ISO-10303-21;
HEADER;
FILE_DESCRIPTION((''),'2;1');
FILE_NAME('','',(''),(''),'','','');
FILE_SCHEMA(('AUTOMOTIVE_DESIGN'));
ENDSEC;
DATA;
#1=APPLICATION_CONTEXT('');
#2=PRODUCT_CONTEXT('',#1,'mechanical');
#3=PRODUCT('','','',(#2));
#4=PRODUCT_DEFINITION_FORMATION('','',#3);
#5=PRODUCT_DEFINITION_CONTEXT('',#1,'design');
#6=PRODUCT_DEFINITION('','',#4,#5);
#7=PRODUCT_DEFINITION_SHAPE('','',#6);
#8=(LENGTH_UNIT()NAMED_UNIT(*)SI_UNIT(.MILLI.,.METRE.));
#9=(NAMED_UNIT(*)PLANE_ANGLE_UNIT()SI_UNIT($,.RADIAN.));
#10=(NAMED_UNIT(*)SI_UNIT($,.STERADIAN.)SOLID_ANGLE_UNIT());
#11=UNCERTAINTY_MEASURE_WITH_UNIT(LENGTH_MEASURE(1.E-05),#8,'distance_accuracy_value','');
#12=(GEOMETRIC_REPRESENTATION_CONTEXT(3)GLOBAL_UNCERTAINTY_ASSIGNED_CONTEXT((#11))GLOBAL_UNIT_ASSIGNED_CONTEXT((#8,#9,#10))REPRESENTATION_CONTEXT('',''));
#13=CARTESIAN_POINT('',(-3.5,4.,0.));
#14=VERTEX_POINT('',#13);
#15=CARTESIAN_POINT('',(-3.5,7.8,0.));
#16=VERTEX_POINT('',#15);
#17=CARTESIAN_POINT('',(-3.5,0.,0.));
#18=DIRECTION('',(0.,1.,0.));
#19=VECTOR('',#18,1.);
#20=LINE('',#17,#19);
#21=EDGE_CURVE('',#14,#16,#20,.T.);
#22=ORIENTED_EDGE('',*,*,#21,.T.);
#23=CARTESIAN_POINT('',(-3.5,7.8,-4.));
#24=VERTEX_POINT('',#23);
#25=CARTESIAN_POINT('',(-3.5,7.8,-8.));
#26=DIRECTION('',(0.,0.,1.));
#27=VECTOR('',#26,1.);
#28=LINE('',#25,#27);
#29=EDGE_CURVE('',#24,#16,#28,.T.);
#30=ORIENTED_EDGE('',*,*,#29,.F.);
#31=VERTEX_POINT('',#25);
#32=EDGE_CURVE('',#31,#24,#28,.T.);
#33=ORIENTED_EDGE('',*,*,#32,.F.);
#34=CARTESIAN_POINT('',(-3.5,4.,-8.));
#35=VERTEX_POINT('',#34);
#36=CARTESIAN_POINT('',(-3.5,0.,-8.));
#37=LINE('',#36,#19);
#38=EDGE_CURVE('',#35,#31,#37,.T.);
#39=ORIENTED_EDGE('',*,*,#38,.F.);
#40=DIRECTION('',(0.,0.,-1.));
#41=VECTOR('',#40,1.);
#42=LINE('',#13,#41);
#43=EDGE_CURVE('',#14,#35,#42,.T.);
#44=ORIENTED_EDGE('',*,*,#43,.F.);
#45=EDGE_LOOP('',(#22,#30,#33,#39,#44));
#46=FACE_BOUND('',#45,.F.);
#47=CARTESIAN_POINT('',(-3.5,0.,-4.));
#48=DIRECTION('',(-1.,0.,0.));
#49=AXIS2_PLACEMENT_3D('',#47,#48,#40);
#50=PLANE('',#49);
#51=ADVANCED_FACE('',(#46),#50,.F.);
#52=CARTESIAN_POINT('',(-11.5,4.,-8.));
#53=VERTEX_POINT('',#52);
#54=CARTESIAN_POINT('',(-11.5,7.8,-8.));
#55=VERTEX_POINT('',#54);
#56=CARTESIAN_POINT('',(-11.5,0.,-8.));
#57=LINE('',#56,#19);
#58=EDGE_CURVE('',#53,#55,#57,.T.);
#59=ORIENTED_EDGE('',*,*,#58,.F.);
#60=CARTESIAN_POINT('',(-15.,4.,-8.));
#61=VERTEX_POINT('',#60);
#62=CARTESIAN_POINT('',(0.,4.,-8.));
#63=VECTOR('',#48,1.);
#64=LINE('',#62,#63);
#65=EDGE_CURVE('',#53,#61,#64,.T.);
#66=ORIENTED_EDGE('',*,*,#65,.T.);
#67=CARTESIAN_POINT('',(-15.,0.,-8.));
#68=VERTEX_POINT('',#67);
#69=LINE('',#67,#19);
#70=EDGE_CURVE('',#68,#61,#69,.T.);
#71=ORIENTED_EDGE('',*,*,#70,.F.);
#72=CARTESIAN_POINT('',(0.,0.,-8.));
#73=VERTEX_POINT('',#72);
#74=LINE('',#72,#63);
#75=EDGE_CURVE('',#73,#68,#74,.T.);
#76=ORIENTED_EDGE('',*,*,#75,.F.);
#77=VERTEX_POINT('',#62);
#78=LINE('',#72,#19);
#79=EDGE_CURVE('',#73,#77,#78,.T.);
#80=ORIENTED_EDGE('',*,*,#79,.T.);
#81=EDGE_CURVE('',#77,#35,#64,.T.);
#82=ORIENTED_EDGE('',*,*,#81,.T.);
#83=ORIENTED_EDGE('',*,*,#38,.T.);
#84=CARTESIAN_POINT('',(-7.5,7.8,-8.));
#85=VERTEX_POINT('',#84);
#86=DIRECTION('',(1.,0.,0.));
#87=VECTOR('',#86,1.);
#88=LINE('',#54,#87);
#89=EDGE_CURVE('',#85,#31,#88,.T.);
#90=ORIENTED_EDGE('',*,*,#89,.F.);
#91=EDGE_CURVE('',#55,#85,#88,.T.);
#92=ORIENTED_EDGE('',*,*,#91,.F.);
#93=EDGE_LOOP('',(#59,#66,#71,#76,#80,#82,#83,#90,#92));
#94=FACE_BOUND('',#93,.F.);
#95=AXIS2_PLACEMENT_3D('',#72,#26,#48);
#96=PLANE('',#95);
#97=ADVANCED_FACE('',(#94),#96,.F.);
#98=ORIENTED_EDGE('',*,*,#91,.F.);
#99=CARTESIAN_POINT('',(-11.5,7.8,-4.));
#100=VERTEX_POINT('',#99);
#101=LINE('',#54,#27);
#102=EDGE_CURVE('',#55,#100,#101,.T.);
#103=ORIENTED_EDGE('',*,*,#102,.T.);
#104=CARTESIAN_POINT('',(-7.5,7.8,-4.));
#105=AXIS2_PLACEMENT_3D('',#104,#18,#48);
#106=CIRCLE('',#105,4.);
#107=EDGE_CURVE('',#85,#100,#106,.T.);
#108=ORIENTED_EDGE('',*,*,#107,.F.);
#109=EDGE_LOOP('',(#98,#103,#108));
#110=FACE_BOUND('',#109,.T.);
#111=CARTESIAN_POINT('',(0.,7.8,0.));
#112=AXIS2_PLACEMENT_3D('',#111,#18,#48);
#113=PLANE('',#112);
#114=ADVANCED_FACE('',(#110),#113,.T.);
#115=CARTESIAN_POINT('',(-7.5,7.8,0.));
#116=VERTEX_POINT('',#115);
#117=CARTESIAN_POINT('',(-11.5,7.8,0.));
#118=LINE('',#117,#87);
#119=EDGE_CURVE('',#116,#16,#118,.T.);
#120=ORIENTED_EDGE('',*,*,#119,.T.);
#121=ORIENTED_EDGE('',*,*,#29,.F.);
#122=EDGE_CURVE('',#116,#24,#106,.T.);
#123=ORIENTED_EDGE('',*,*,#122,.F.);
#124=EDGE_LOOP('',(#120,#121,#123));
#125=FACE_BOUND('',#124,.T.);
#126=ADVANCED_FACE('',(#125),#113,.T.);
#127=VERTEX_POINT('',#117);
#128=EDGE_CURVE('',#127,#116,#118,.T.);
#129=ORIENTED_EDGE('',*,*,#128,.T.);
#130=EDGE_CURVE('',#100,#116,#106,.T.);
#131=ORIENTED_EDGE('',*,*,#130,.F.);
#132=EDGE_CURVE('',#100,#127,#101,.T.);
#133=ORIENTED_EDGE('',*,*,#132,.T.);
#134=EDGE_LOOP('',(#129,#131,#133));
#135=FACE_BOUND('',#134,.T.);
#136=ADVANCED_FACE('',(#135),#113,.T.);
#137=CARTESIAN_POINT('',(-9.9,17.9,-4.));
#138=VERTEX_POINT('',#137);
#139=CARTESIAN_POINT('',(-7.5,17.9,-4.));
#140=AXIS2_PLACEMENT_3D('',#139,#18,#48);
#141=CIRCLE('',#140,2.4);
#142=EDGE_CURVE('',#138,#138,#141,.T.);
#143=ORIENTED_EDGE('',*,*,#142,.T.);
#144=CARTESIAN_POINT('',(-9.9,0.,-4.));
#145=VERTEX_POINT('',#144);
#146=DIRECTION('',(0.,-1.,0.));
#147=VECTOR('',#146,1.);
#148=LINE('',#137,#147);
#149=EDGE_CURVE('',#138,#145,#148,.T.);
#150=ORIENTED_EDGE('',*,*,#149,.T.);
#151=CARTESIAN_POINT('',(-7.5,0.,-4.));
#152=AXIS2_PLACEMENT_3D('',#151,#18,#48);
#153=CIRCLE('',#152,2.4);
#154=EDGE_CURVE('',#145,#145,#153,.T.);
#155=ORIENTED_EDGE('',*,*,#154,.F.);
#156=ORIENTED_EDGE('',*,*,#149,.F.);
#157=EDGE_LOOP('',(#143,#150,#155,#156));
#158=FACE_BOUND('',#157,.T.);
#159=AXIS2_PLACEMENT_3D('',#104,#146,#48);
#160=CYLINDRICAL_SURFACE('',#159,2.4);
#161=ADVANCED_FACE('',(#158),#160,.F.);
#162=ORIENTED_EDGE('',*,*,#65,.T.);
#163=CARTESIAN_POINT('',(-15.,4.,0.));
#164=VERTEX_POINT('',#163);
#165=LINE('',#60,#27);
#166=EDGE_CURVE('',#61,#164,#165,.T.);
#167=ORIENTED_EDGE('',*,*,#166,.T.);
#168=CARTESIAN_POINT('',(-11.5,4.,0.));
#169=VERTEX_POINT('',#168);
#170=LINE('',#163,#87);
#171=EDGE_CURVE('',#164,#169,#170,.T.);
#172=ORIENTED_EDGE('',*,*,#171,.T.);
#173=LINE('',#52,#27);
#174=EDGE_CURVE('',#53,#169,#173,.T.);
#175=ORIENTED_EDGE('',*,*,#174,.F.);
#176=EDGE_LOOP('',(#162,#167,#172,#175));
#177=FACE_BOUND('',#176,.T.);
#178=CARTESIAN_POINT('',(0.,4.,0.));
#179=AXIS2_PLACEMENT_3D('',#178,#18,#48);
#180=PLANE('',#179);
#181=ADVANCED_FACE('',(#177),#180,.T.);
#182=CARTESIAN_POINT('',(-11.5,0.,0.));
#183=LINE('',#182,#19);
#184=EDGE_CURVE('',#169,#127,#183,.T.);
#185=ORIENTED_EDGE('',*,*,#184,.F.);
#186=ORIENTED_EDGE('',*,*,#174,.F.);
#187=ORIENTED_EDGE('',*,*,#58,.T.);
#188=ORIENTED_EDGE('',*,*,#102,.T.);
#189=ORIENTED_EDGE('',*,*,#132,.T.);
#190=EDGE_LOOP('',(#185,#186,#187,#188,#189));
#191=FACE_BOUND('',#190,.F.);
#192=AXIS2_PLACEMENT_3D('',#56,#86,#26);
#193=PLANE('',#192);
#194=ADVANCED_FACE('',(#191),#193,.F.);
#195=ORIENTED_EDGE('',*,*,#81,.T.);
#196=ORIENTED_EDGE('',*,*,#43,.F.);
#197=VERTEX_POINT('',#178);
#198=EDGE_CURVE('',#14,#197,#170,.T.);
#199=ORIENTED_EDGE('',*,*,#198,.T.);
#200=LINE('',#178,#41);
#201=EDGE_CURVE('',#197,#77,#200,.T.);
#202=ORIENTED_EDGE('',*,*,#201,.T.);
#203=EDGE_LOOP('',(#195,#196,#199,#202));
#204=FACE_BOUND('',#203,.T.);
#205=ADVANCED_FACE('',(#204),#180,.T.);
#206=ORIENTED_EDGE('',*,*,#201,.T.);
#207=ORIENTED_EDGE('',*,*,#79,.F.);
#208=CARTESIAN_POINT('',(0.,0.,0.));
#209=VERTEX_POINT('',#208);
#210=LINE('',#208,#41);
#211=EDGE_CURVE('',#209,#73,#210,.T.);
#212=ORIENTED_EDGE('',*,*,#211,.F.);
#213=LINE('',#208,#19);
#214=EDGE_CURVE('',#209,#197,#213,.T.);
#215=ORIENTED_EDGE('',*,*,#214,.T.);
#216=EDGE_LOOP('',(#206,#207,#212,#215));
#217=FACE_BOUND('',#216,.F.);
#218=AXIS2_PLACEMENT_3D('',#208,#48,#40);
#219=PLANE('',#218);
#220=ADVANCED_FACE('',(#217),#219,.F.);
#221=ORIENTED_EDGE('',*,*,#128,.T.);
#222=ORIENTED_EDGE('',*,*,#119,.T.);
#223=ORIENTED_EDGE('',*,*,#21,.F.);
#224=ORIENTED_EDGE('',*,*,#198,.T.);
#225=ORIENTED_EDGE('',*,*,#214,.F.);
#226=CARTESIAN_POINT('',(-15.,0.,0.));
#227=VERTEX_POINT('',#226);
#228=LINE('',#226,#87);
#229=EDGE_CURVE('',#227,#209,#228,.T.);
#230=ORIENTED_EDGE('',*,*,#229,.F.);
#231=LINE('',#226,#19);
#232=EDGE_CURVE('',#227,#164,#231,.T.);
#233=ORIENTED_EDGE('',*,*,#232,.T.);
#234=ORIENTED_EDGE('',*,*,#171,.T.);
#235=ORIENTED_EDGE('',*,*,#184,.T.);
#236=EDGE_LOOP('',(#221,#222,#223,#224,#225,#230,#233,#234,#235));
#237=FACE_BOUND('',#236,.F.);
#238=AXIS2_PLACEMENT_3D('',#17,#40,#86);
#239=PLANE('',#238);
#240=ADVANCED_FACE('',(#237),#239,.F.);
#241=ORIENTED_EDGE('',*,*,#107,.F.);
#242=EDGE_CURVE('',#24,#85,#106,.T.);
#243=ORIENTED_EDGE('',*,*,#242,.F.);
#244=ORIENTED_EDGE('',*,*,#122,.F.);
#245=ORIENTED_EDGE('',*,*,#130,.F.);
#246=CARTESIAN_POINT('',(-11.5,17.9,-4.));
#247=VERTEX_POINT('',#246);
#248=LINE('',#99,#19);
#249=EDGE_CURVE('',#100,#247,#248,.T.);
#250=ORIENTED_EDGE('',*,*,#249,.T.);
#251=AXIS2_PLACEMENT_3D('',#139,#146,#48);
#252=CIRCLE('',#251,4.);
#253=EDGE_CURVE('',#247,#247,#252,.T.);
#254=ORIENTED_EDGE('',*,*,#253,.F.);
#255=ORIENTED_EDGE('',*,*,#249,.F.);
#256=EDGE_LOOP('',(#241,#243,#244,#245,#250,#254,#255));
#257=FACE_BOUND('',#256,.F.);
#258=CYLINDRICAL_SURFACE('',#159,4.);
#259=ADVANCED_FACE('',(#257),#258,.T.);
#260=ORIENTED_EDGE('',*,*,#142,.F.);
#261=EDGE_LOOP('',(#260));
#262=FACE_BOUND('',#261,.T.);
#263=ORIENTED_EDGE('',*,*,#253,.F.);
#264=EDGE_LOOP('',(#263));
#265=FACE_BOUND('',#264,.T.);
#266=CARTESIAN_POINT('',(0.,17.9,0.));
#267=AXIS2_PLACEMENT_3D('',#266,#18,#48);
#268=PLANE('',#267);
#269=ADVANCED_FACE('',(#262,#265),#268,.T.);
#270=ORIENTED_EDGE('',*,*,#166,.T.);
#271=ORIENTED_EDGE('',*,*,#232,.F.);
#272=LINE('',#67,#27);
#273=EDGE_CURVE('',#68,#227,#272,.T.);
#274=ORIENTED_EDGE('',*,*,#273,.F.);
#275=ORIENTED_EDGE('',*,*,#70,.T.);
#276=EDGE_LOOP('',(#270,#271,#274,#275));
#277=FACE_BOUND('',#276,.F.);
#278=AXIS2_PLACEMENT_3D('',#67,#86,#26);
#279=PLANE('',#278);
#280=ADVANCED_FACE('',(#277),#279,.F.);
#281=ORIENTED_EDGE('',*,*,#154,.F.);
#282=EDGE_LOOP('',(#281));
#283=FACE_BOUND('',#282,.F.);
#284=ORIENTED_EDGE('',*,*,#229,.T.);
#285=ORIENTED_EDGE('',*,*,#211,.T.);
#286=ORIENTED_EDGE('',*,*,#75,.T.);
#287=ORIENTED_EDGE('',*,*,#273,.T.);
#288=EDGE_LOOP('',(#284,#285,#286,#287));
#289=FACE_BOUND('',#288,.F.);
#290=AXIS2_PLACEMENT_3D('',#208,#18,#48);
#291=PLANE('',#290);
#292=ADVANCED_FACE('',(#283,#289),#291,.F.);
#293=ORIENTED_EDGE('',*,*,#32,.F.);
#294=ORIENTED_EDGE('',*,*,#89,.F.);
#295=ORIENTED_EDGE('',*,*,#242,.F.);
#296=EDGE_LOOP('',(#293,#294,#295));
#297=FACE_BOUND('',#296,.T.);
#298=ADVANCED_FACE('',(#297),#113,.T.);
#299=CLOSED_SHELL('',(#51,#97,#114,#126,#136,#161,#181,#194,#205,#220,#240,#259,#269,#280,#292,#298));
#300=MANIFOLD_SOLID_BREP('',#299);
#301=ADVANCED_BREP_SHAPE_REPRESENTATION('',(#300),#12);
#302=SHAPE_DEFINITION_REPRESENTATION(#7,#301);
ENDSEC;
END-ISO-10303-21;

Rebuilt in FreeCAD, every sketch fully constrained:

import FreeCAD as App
import Part
import Sketcher
from FreeCAD import Vector
Q = App.Units.Quantity


def add_polygon(sketch, points):
    """Adds a closed chain of lines whose ends are joined by coincident constraints."""
    first, n = sketch.GeometryCount, len(points)
    for a, b in zip(points, points[1:] + points[:1]):
        sketch.addGeometry(Part.LineSegment(App.Vector(*a, 0), App.Vector(*b, 0)), False)
    for i in range(n):
        sketch.addConstraint(Sketcher.Constraint("Coincident", first + i, 2, first + (i + 1) % n, 1))

doc = App.newDocument("Part")
body = doc.addObject("PartDesign::Body", "Body")
body.AllowCompound = True

# Sketch on XZ plane
sketch1 = body.newObject("Sketcher::SketchObject", "Sketch")
sketch1.AttachmentSupport = (doc.getObject("XZ_Plane"), [""])
sketch1.MapMode = "FlatFace"
add_polygon(sketch1, [(0, 0), (0, -8), (-3.5, -8), (-3.5, 0)])  # lines 0-3
add_polygon(sketch1, [(-11.5, 0), (-11.5, -8), (-15, -8), (-15, 0)])  # lines 4-7
sketch1.addConstraint([
    Sketcher.Constraint("Vertical", 0),
    Sketcher.Constraint("Horizontal", 1),
    Sketcher.Constraint("Vertical", 2),
    Sketcher.Constraint("Horizontal", 3),
    Sketcher.Constraint("Vertical", 4),
    Sketcher.Constraint("Horizontal", 5),
    Sketcher.Constraint("Vertical", 6),
    Sketcher.Constraint("Horizontal", 7),
    Sketcher.Constraint("Coincident", 3, 2, -1, 1),
    Sketcher.Constraint("PointOnObject", 6, 2, -1),
    Sketcher.Constraint("Horizontal", 1, 2, 4, 2),
    Sketcher.Constraint("Equal", 3, 5),
    Sketcher.Constraint("DistanceY", 0, 2, 0, 1, Q("8 mm")),
    Sketcher.Constraint("DistanceX", 5, 2, -1, 1, Q("15 mm")),
    Sketcher.Constraint("DistanceX", 4, 2, 1, 2, Q("8 mm")),
])
pad1 = body.newObject("PartDesign::Pad", "Pad")
pad1.Profile = sketch1
pad1.Length = 4
pad1.Reversed = True

# Sketch on XZ plane
sketch2 = body.newObject("Sketcher::SketchObject", "Sketch001")
sketch2.AttachmentSupport = (doc.getObject("XZ_Plane"), [""])
sketch2.MapMode = "FlatFace"
add_polygon(sketch2, [(-3.5, -8), (-11.5, -8), (-11.5, 0), (-3.5, 0)])  # lines 0-3
sketch2.addGeometry(Part.Circle(Vector(-7.5, -4, 0), Vector(0, 0, 1), 2.4), False)  # 4
sketch2.addConstraint([
    Sketcher.Constraint("Horizontal", 0),
    Sketcher.Constraint("Vertical", 1),
    Sketcher.Constraint("Horizontal", 2),
    Sketcher.Constraint("Vertical", 3),
    Sketcher.Constraint("PointOnObject", 1, 2, -1),
    Sketcher.Constraint("Equal", 2, 1),
    Sketcher.Constraint("Diameter", 4, Q("4.8 mm")),
    Sketcher.Constraint("DistanceX", 0, 2, 0, 1, Q("8 mm")),
    Sketcher.Constraint("DistanceY", 4, 3, -1, 1, Q("4 mm")),
    Sketcher.Constraint("DistanceX", 0, 2, 4, 3, Q("4 mm")),
    Sketcher.Constraint("DistanceX", 4, 3, -1, 1, Q("7.5 mm")),
])
pad2 = body.newObject("PartDesign::Pad", "Pad001")
pad2.Profile = sketch2
pad2.Length = 7.8
pad2.Reversed = True

# Sketch on XZ plane
sketch3 = body.newObject("Sketcher::SketchObject", "Sketch002")
sketch3.AttachmentSupport = (doc.getObject("XZ_Plane"), [""])
sketch3.MapMode = "FlatFace"
sketch3.AttachmentOffset = App.Placement(Vector(0, 0, -7.8), App.Rotation())
sketch3.addGeometry([
    Part.Circle(Vector(-7.5, -4, 0), Vector(0, 0, 1), 4),
    Part.Circle(Vector(-7.5, -4, 0), Vector(0, 0, 1), 2.4),
], False)
sketch3.addConstraint([
    Sketcher.Constraint("Coincident", 1, 3, 0, 3),
    Sketcher.Constraint("Diameter", 0, Q("8 mm")),
    Sketcher.Constraint("Diameter", 1, Q("4.8 mm")),
    Sketcher.Constraint("DistanceY", 0, 3, -1, 1, Q("4 mm")),
    Sketcher.Constraint("DistanceX", 0, 3, -1, 1, Q("7.5 mm")),
])
pad3 = body.newObject("PartDesign::Pad", "Pad002")
pad3.Profile = sketch3
pad3.Length = 10.1
pad3.Reversed = True

doc.recompute()
